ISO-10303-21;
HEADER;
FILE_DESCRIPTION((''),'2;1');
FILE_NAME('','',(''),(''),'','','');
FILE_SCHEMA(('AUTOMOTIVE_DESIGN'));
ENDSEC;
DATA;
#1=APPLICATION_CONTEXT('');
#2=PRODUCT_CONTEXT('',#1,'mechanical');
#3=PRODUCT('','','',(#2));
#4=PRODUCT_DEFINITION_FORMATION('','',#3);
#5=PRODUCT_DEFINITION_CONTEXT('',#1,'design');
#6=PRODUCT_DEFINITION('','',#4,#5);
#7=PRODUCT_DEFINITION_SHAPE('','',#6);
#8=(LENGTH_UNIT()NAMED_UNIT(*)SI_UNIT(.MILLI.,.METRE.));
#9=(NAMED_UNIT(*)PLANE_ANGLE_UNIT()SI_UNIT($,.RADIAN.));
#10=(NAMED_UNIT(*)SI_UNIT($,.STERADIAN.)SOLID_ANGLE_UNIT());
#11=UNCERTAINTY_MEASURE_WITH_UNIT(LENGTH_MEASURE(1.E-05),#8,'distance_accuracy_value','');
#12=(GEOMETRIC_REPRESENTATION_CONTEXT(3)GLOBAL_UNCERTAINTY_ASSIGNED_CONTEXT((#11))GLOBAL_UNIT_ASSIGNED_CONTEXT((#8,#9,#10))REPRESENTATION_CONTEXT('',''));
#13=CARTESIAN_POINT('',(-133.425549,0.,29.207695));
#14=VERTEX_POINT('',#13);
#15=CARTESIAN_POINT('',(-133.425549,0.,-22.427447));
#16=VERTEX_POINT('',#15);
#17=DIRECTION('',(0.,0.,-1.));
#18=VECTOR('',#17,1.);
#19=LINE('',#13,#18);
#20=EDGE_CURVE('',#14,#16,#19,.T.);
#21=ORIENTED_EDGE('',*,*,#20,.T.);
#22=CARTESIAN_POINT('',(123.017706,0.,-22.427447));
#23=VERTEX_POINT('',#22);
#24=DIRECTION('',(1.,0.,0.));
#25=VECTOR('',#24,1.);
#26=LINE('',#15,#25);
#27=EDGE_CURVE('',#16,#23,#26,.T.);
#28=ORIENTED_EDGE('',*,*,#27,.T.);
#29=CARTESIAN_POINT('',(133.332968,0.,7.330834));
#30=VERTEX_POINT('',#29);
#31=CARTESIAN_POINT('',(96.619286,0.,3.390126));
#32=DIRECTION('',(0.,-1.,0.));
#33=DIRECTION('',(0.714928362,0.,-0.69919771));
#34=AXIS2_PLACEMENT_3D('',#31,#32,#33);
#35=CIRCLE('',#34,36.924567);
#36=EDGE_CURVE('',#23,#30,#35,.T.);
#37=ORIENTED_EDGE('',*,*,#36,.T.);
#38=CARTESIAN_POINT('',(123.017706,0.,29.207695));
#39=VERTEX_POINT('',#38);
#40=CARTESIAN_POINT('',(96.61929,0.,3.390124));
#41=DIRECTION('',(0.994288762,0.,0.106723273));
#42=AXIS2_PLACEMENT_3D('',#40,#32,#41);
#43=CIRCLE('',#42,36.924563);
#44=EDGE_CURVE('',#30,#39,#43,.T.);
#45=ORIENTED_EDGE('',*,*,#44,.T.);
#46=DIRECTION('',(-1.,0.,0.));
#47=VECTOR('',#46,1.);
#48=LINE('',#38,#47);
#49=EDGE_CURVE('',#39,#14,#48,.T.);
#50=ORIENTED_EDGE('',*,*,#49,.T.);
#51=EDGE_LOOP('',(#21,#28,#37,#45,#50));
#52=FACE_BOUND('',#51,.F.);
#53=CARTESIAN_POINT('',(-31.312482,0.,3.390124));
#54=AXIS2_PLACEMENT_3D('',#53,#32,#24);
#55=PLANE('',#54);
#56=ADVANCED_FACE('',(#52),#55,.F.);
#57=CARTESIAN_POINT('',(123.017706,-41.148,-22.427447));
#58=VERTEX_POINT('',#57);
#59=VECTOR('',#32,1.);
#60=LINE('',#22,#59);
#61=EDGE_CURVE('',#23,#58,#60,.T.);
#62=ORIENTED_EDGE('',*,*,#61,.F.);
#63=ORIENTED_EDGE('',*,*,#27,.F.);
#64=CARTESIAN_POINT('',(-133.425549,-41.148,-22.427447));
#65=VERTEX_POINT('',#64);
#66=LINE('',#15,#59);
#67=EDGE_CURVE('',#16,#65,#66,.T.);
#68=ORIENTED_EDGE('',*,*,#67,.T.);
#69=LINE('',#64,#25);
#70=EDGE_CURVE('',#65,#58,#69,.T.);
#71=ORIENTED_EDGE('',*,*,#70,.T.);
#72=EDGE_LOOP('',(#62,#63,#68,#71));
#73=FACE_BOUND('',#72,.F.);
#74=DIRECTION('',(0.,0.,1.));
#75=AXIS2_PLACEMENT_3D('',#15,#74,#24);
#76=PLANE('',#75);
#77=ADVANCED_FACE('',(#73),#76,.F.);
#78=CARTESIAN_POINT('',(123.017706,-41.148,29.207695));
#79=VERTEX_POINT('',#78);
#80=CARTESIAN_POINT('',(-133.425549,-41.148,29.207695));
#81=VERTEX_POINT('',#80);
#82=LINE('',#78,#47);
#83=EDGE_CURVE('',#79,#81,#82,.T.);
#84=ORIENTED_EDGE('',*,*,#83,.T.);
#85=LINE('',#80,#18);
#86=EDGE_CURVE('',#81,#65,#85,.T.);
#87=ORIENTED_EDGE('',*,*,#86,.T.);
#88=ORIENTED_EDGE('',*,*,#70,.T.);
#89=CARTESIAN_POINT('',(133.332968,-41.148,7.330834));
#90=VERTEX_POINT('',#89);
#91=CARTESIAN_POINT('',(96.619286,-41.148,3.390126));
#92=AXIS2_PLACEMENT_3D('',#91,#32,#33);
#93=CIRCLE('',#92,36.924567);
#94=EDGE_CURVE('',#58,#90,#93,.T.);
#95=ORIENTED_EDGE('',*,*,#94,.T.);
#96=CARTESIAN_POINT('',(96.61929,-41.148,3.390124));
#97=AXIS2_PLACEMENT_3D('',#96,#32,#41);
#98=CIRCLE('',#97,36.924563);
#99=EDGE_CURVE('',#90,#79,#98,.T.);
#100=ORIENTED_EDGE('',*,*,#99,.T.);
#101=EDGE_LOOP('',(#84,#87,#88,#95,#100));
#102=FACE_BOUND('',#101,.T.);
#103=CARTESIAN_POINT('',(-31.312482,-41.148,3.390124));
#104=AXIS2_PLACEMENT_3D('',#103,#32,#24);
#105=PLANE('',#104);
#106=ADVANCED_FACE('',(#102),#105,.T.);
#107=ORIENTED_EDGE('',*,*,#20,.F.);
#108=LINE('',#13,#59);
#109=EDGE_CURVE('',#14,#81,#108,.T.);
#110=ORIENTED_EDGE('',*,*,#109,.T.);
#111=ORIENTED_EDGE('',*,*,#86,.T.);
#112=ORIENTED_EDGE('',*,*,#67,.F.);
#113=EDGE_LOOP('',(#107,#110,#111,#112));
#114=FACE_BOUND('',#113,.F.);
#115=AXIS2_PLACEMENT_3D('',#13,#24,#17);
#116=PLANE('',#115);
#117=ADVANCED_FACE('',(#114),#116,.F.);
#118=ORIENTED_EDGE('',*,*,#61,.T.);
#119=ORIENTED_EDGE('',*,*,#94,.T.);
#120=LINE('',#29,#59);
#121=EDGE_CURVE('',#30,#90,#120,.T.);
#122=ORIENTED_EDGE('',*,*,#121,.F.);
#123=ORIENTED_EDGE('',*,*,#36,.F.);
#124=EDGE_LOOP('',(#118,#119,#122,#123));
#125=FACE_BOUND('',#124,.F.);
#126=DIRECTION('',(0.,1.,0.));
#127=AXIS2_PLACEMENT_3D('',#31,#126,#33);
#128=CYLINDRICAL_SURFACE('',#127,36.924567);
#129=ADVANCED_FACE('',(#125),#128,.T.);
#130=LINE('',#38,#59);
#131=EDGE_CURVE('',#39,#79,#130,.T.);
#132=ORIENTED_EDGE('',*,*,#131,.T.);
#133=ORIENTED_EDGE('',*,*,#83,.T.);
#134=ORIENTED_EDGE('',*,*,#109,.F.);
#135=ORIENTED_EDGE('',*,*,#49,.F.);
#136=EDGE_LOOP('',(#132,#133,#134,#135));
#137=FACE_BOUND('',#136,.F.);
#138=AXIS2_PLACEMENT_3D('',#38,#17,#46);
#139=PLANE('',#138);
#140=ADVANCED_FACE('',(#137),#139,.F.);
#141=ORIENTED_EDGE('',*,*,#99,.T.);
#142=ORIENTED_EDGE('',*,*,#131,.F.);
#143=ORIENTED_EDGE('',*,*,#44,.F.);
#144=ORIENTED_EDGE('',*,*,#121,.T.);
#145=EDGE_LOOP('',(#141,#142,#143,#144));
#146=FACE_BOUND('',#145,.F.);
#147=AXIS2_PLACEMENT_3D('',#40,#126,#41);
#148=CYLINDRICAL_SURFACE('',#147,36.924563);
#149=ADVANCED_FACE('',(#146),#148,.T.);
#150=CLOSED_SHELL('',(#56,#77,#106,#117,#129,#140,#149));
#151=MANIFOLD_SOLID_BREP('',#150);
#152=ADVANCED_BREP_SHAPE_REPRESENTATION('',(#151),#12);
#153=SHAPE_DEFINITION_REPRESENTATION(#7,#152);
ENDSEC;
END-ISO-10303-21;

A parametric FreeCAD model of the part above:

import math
import FreeCAD as App
import Part
import Sketcher
Q = App.Units.Quantity

doc = App.newDocument("Part")
body = doc.addObject("PartDesign::Body", "Body")

sketch1 = doc.addObject("Sketcher::SketchObject", "Sketch")
body.addObject(sketch1)
sketch1.AttachmentSupport = (doc.XZ_Plane, [""])
sketch1.MapMode = "FlatFace"
sketch1.addGeometry([
    Part.LineSegment(App.Vector(-133, 29, 0), App.Vector(-133, -22, 0)),
    Part.LineSegment(App.Vector(-133, -22, 0), App.Vector(123, -22, 0)),
    Part.ArcOfCircle(Part.Circle(App.Vector(97, 3, 0), App.Vector(0, 0, 1), 37), math.radians(-44), math.radians(6)),
    Part.ArcOfCircle(Part.Circle(App.Vector(97, 3, 0), App.Vector(0, 0, 1), 37), math.radians(6), math.radians(44)),
    Part.LineSegment(App.Vector(123, 29, 0), App.Vector(-133, 29, 0)),
], False)
sketch1.addConstraint([
    Sketcher.Constraint("Coincident", 0, 2, 1, 1),
    Sketcher.Constraint("Coincident", 1, 2, 2, 1),
    Sketcher.Constraint("Tangent", 2, 2, 3, 1),
    Sketcher.Constraint("Coincident", 3, 2, 4, 1),
    Sketcher.Constraint("Coincident", 4, 2, 0, 1),
    Sketcher.Constraint("Vertical", 0),
    Sketcher.Constraint("Horizontal", 1),
    Sketcher.Constraint("Horizontal", 4),
    Sketcher.Constraint("Vertical", 1, 2, 3, 2),
    Sketcher.Constraint("Radius", 2, Q("36.924567 mm")),
    Sketcher.Constraint("Radius", 3, Q("36.924563 mm")),
    Sketcher.Constraint("DistanceX", 1, 1, 1, 2, Q("256.443255 mm")),
    Sketcher.Constraint("DistanceY", 0, 2, 0, 1, Q("51.635142 mm")),
    Sketcher.Constraint("DistanceX", -1, 1, 3, 3, Q("96.61929 mm")),
    Sketcher.Constraint("DistanceX", 1, 2, 2, 2, Q("10.315262 mm")),
    Sketcher.Constraint("DistanceY", -1, 1, 2, 3, Q("3.390126 mm")),
])
pad1 = doc.addObject("PartDesign::Pad", "Pad")
body.addObject(pad1)
pad1.Profile = sketch1
pad1.Length = Q("1.62 in")

doc.recompute()
